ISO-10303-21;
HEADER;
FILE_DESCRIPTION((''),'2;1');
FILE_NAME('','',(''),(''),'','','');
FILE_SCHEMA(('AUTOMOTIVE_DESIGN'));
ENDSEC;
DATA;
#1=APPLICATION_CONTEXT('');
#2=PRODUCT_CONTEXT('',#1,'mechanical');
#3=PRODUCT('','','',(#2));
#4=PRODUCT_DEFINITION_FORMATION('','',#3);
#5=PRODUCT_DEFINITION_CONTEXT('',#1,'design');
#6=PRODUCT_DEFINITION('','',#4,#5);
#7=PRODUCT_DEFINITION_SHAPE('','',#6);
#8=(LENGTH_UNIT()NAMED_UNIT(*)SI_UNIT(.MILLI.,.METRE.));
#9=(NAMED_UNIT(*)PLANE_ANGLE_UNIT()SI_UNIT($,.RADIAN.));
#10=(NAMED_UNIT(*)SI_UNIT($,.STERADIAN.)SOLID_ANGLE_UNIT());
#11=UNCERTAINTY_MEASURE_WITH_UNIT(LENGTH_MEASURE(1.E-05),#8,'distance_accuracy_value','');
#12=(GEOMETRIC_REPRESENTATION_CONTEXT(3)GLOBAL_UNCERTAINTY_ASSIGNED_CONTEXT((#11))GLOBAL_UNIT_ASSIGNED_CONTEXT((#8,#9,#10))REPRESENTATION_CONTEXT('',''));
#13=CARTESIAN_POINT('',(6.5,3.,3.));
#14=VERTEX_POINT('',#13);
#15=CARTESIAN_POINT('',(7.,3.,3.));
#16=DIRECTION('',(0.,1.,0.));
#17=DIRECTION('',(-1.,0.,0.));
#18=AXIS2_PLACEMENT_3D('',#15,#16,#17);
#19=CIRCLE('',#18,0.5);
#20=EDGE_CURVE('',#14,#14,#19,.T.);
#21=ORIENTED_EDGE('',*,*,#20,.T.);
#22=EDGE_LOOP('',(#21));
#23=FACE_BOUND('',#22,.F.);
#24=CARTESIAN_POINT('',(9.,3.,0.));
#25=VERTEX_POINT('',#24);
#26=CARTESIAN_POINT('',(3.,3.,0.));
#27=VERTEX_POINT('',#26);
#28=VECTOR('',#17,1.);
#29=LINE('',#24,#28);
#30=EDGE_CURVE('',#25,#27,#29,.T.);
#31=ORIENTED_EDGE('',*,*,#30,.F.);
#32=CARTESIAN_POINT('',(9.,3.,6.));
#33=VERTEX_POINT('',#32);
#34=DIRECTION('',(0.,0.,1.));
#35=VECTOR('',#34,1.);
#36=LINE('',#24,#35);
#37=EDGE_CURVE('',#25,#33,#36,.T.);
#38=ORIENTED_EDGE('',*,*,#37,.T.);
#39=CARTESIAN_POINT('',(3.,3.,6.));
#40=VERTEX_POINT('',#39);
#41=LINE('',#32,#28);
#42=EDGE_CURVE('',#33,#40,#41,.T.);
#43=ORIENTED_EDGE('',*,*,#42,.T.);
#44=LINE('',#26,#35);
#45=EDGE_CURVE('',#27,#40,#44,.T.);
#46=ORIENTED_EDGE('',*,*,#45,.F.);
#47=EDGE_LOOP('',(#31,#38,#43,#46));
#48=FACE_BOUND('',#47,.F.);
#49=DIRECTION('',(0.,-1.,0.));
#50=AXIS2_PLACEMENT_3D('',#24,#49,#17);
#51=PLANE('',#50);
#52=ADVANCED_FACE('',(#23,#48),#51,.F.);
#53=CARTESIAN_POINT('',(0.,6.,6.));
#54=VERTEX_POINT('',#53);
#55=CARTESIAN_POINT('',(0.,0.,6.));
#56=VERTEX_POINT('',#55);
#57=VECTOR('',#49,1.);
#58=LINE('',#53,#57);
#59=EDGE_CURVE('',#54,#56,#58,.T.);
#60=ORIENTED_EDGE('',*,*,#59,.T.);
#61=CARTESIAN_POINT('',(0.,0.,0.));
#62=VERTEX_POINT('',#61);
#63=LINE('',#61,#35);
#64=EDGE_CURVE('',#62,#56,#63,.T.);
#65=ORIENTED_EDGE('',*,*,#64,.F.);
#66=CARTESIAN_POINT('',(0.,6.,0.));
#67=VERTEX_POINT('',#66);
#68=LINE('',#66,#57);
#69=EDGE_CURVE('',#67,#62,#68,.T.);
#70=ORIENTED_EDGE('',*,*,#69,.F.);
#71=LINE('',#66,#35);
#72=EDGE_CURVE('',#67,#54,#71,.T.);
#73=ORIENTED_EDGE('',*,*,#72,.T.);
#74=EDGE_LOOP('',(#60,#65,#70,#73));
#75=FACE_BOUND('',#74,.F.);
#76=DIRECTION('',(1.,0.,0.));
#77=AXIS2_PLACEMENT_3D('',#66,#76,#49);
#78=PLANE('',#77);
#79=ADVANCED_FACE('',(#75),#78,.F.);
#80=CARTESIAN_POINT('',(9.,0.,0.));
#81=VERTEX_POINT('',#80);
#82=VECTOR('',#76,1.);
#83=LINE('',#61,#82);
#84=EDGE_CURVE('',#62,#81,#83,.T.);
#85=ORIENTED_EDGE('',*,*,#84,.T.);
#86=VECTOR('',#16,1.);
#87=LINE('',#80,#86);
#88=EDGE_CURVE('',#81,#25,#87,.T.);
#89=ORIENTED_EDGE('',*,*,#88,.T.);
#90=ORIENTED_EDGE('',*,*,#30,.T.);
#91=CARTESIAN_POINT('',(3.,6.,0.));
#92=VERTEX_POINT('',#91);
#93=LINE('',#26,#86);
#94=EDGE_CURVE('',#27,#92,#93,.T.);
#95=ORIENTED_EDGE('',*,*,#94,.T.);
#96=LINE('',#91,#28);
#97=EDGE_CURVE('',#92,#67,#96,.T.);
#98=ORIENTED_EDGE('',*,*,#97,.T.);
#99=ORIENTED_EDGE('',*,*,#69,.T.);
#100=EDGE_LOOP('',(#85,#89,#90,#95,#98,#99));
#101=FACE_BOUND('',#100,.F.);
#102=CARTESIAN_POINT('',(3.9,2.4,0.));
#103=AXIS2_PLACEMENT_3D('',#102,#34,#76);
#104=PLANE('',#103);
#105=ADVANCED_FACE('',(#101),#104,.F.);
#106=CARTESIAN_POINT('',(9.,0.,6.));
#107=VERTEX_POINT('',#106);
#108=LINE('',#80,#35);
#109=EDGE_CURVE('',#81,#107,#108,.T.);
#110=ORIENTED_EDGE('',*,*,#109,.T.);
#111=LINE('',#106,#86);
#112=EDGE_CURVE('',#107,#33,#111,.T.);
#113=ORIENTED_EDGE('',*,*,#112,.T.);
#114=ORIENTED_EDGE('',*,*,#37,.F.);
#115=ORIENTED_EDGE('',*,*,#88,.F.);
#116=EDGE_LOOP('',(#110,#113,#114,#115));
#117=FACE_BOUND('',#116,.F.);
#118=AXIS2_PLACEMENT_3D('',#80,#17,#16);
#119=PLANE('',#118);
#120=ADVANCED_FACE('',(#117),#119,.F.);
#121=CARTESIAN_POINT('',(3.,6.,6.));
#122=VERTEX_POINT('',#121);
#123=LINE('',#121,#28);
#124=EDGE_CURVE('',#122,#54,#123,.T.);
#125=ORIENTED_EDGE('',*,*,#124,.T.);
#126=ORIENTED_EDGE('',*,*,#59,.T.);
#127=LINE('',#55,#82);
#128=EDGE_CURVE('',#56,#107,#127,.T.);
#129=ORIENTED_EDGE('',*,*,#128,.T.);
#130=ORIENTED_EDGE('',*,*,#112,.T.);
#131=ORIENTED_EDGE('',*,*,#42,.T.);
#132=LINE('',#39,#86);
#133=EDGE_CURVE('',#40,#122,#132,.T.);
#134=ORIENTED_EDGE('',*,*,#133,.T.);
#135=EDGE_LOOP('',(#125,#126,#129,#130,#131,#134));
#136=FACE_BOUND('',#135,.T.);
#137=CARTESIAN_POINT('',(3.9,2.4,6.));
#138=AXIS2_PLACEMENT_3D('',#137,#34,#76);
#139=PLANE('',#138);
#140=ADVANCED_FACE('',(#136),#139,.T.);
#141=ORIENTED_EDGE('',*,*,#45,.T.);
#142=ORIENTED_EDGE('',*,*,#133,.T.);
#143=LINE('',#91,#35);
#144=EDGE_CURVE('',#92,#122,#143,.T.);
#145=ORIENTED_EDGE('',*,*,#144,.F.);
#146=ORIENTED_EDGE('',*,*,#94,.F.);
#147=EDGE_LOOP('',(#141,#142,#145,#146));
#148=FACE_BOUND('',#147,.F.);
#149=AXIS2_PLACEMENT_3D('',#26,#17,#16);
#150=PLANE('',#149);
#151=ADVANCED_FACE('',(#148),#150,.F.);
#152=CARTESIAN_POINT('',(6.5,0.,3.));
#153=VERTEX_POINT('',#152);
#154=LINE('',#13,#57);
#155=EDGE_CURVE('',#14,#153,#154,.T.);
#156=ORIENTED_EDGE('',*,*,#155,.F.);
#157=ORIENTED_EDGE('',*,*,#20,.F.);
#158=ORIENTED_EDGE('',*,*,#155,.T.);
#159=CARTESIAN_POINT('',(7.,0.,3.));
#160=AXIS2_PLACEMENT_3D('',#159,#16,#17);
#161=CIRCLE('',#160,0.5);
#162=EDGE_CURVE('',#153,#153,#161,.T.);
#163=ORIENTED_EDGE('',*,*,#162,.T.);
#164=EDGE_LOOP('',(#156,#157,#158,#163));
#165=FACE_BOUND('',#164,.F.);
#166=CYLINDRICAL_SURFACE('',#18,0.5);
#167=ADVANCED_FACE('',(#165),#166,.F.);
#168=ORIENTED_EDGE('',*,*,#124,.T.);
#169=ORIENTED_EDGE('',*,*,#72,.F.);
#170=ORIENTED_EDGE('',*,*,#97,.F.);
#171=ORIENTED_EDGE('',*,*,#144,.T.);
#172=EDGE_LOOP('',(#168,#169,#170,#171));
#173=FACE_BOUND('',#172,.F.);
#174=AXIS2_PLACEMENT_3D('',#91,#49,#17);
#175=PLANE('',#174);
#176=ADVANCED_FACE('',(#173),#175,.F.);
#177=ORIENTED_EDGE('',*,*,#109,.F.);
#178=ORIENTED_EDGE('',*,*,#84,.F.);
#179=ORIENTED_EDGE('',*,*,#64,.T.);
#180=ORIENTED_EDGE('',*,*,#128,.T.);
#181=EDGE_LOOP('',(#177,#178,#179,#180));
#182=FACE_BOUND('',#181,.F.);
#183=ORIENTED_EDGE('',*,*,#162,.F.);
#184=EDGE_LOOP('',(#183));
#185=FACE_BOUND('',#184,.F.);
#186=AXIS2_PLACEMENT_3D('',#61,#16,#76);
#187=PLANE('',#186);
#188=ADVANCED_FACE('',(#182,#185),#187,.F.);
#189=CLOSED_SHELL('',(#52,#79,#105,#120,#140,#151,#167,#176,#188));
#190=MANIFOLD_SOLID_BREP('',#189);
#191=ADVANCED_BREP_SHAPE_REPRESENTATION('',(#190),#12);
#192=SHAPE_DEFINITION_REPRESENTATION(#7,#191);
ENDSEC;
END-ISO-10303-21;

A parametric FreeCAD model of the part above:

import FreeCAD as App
import Part
import Sketcher

V = App.Vector


def add_polygon(sketch, points):
    """Adds a closed chain of lines whose ends are joined by coincident constraints."""
    first, n = sketch.GeometryCount, len(points)
    for a, b in zip(points, points[1:] + points[:1]):
        sketch.addGeometry(Part.LineSegment(App.Vector(*a, 0), App.Vector(*b, 0)), False)
    for i in range(n):
        sketch.addConstraint(Sketcher.Constraint("Coincident", first + i, 2, first + (i + 1) % n, 1))

doc = App.newDocument("Part")
params = doc.addObject("Spreadsheet::Sheet", "Params")
for row, (alias, value) in enumerate([
    ("sketch1_width", "9 mm"),
    ("pad1_length", "6 mm"),
    ("sketch2_diameter", "1 mm"),
], start=1):
    params.set(f"A{row}", alias)
    params.set(f"B{row}", "=" + value)
    params.setAlias(f"B{row}", alias)

body = doc.addObject("PartDesign::Body", "Body")

# Sketch on XY plane
sketch1 = body.newObject("Sketcher::SketchObject", "Sketch")
sketch1.AttachmentSupport = (doc.getObject("XY_Plane"), [""])
sketch1.MapMode = "FlatFace"
add_polygon(sketch1, [(0, 6), (0, 0), (9, 0), (9, 3), (3, 3), (3, 6)])  # lines 0-5
sketch1.addConstraint([
    Sketcher.Constraint("Vertical", 0),
    Sketcher.Constraint("Horizontal", 1),
    Sketcher.Constraint("Vertical", 2),
    Sketcher.Constraint("Horizontal", 3),
    Sketcher.Constraint("Vertical", 4),
    Sketcher.Constraint("Horizontal", 5),
    Sketcher.Constraint("Coincident", 0, 2, -1, 1),
    Sketcher.Constraint("Equal", 3, 0),
    Sketcher.Constraint("Equal", 5, 2),
    Sketcher.Constraint("Equal", 2, 4),
    Sketcher.Constraint("DistanceX", 1, 1, 1, 2, 9.0),
])
sketch1.setExpression("Constraints[16]", "Params.sketch1_width")
pad1 = body.newObject("PartDesign::Pad", "Pad")
pad1.Profile = sketch1
pad1.setExpression("Length", "Params.pad1_length")

# Sketch on XZ plane
sketch2 = body.newObject("Sketcher::SketchObject", "Sketch001")
sketch2.AttachmentSupport = (doc.getObject("XZ_Plane"), [""])
sketch2.MapMode = "FlatFace"
sketch2.AttachmentOffset = App.Placement(V(0, 0, -3), App.Rotation())
sketch2.addGeometry(Part.Circle(V(7, 3, 0), V(0, 0, 1), 0.5), False)
sketch2.addConstraint([
    Sketcher.Constraint("Diameter", 0, 1.0),
    Sketcher.Constraint("DistanceX", -1, 1, 0, 3, 7.0),
    Sketcher.Constraint("DistanceY", -1, 1, 0, 3, 3.0),
])
sketch2.setExpression("Constraints[0]", "Params.sketch2_diameter")
pocket1 = body.newObject("PartDesign::Pocket", "Pocket")
pocket1.Profile = sketch2
pocket1.Type = "ThroughAll"
pocket1.Reversed = True

doc.recompute()
